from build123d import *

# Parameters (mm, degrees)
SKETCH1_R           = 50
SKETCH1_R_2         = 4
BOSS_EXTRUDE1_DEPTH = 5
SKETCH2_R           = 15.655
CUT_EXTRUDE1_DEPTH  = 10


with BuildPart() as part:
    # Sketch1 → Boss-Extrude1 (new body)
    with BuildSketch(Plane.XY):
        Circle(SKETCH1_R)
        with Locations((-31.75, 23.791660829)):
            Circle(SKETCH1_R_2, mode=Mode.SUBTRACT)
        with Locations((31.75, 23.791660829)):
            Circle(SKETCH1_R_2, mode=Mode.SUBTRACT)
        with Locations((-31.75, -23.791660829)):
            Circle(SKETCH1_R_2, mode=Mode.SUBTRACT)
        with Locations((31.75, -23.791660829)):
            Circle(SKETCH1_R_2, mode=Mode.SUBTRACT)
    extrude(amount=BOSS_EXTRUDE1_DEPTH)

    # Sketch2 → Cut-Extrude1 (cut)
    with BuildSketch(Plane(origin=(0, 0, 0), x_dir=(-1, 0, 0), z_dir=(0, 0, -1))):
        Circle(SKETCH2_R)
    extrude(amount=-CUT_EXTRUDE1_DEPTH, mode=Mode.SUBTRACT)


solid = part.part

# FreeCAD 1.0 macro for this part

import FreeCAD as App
import Part
import Sketcher
Q = App.Units.Quantity

doc = App.newDocument("Part")
body = doc.addObject("PartDesign::Body", "Body")

# Sketch on XY plane
sketch1 = body.newObject("Sketcher::SketchObject", "Sketch")
sketch1.AttachmentSupport = (doc.getObject("XY_Plane"), [""])
sketch1.MapMode = "FlatFace"
sketch1.addGeometry([
    Part.Circle(App.Vector(0, 0, 0), App.Vector(0, 0, 1), 50),  # 0
    Part.Circle(App.Vector(-31.8, -23.8, 0), App.Vector(0, 0, 1), 4),  # 1
    Part.Circle(App.Vector(31.8, -23.8, 0), App.Vector(0, 0, 1), 4),  # 2
    Part.Circle(App.Vector(-31.8, 23.8, 0), App.Vector(0, 0, 1), 4),  # 3
    Part.Circle(App.Vector(31.8, 23.8, 0), App.Vector(0, 0, 1), 4),  # 4
], False)
sketch1.addConstraint([
    Sketcher.Constraint("Coincident", 0, 3, -1, 1),
    Sketcher.Constraint("Equal", 1, 2),
    Sketcher.Constraint("Equal", 2, 3),
    Sketcher.Constraint("Equal", 3, 4),
    Sketcher.Constraint("Symmetric", 2, 3, 3, 3, -1, 1),
    Sketcher.Constraint("Symmetric", 1, 3, 4, 3, -1, 1),
    Sketcher.Constraint("Symmetric", 1, 3, 2, 3, -2),
    Sketcher.Constraint("Diameter", 0, Q("100 mm")),
    Sketcher.Constraint("Diameter", 1, Q("8 mm")),
    Sketcher.Constraint("DistanceX", 1, 3, 2, 3, Q("63.5 mm")),
    Sketcher.Constraint("DistanceY", 1, 3, -1, 1, Q("23.791661 mm")),
])
pad1 = body.newObject("PartDesign::Pad", "Pad")
pad1.Profile = sketch1
pad1.Length = 5

# Sketch on XY plane
sketch2 = body.newObject("Sketcher::SketchObject", "Sketch001")
sketch2.AttachmentSupport = (doc.getObject("XY_Plane"), [""])
sketch2.MapMode = "FlatFace"
sketch2.addGeometry(Part.Circle(App.Vector(0, 0, 0), App.Vector(0, 0, 1), 16), False)
sketch2.addConstraint([
    Sketcher.Constraint("Coincident", 0, 3, -1, 1),
    Sketcher.Constraint("Diameter", 0, Q("31.31 mm")),
])
pocket1 = body.newObject("PartDesign::Pocket", "Pocket")
pocket1.Profile = sketch2
pocket1.Length = 10
pocket1.Reversed = True

doc.recompute()
